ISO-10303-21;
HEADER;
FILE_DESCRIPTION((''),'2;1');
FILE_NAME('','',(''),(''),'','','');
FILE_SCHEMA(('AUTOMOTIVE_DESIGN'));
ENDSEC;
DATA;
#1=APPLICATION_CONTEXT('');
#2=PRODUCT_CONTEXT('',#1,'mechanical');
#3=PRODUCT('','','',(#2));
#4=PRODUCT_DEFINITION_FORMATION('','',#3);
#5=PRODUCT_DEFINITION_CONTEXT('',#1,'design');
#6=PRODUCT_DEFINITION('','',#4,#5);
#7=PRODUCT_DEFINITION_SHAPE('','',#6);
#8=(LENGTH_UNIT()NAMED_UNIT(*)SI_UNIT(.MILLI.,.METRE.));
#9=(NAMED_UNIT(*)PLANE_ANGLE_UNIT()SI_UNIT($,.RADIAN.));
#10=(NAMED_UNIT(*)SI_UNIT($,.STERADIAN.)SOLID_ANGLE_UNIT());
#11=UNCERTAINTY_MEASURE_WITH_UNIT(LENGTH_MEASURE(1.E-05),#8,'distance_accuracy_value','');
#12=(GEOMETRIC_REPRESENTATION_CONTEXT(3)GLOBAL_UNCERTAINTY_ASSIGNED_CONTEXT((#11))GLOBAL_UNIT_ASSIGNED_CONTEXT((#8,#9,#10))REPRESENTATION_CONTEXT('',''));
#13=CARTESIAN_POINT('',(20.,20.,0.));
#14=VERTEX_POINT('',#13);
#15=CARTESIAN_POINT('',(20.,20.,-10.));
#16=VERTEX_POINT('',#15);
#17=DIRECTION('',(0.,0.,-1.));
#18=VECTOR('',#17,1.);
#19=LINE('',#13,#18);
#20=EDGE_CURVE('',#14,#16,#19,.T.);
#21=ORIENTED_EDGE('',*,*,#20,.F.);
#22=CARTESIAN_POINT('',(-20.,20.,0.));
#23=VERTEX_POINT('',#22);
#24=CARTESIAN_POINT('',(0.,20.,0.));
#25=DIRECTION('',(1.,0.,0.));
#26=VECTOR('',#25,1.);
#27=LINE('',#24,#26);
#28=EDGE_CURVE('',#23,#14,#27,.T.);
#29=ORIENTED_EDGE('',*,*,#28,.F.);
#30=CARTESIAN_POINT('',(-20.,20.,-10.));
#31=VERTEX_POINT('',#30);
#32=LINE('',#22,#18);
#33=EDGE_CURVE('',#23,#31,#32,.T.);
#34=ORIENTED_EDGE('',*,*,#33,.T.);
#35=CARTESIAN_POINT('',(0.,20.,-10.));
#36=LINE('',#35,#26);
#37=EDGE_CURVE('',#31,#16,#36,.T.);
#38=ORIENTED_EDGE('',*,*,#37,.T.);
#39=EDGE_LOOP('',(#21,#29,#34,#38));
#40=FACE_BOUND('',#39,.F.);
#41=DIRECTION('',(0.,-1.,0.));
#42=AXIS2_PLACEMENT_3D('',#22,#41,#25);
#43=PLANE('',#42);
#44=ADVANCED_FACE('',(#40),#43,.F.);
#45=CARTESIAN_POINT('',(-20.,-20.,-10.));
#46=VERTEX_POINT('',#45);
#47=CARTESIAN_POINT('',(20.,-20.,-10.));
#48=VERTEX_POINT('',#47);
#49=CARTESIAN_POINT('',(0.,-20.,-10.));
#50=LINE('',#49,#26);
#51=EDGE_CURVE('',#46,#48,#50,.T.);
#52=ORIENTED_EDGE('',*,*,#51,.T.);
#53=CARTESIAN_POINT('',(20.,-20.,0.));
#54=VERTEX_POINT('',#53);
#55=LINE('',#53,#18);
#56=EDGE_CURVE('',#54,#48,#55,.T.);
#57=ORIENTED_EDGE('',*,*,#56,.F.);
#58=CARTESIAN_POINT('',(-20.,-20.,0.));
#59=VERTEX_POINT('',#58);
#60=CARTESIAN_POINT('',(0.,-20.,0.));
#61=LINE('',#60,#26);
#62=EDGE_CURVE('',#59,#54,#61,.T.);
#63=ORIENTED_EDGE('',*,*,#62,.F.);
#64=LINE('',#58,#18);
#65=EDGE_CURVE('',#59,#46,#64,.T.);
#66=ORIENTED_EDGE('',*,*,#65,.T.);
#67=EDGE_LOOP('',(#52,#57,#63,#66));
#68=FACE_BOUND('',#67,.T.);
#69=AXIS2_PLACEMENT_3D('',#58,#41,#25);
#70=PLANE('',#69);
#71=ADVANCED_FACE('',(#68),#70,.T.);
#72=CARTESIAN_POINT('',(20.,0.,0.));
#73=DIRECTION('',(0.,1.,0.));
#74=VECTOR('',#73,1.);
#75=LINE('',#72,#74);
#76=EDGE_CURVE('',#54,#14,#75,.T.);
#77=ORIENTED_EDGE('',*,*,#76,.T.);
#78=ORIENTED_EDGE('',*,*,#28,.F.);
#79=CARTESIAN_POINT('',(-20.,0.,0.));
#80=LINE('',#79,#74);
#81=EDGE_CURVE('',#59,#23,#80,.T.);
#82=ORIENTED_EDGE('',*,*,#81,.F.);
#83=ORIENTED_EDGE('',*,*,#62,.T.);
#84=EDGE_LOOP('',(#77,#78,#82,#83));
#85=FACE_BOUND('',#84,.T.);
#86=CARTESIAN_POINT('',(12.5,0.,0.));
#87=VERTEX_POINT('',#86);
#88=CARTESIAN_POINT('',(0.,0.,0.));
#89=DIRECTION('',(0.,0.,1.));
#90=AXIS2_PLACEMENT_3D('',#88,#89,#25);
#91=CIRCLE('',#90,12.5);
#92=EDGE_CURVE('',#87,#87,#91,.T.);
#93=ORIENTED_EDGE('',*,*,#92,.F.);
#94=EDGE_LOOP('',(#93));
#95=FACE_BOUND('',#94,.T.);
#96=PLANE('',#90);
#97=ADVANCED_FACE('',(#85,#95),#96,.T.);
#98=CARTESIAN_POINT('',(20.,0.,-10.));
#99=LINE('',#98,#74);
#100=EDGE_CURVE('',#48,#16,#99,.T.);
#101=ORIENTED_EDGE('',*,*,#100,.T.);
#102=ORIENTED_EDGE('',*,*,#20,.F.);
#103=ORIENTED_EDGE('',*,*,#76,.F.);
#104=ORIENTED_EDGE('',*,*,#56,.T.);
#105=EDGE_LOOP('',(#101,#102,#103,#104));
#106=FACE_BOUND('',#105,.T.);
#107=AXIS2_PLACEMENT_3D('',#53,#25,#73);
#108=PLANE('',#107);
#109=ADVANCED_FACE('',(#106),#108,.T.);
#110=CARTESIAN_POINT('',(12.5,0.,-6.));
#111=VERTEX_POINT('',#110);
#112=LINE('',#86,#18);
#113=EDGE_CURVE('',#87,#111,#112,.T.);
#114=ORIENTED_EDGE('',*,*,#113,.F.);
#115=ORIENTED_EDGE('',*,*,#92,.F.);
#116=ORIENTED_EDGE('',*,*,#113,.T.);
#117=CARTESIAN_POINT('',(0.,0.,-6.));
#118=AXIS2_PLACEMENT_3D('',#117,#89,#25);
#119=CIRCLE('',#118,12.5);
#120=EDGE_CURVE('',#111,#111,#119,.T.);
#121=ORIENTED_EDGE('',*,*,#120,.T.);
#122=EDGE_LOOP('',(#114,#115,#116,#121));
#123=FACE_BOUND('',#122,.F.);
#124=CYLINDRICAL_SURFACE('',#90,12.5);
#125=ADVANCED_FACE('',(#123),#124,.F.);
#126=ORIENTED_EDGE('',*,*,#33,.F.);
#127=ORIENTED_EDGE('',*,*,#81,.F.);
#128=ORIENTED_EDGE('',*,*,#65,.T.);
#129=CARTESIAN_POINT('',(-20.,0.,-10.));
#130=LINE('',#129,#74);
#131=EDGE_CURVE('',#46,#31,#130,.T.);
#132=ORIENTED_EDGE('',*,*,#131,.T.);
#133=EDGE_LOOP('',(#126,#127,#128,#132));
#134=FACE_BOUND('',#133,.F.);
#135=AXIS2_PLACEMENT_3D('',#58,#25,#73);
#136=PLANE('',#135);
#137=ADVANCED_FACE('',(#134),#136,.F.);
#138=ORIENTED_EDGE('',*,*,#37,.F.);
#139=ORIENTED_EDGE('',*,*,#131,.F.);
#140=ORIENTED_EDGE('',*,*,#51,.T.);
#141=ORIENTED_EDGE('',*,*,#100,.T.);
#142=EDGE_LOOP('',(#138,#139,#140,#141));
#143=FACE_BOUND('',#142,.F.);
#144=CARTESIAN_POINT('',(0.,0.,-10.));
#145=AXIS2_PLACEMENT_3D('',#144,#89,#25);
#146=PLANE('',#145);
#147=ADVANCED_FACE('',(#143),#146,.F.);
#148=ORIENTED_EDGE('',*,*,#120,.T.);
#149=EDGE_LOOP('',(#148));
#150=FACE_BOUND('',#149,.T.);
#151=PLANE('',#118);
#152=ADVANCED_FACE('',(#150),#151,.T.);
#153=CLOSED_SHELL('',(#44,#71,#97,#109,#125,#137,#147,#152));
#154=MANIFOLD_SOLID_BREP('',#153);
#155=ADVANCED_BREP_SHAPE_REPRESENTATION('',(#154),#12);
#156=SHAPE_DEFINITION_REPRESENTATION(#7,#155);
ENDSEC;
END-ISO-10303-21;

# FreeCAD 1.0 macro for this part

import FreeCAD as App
import Part
import Sketcher

V = App.Vector
Q = App.Units.Quantity

doc = App.newDocument("Part")
body = doc.addObject("PartDesign::Body", "Body")

# Sketch on XY plane
sketch1 = body.newObject("Sketcher::SketchObject", "Sketch")
sketch1.AttachmentSupport = (doc.getObject("XY_Plane"), [""])
sketch1.MapMode = "FlatFace"
sketch1.addGeometry(Part.LineSegment(V(-20, 20, 0), V(-20, -20, 0)), False)
sketch1.addGeometry(Part.LineSegment(V(-20, -20, 0), V(20, -20, 0)), False)
sketch1.addGeometry(Part.LineSegment(V(20, -20, 0), V(20, 20, 0)), False)
sketch1.addGeometry(Part.LineSegment(V(20, 20, 0), V(-20, 20, 0)), False)
sketch1.addConstraint(Sketcher.Constraint("Coincident", 0, 2, 1, 1))
sketch1.addConstraint(Sketcher.Constraint("Coincident", 1, 2, 2, 1))
sketch1.addConstraint(Sketcher.Constraint("Coincident", 2, 2, 3, 1))
sketch1.addConstraint(Sketcher.Constraint("Coincident", 3, 2, 0, 1))
sketch1.addConstraint(Sketcher.Constraint("Vertical", 0))
sketch1.addConstraint(Sketcher.Constraint("Horizontal", 1))
sketch1.addConstraint(Sketcher.Constraint("Vertical", 2))
sketch1.addConstraint(Sketcher.Constraint("Horizontal", 3))
sketch1.addConstraint(Sketcher.Constraint("Symmetric", 0, 2, 2, 2, -1, 1))
sketch1.addConstraint(Sketcher.Constraint("Equal", 3, 0))
sketch1.addConstraint(Sketcher.Constraint("DistanceX", 1, 1, 1, 2, 40.0))
pad1 = body.newObject("PartDesign::Pad", "Pad")
pad1.Profile = sketch1
pad1.Length = 10
pad1.Reversed = True

# Sketch on XZ plane
sketch2 = body.newObject("Sketcher::SketchObject", "Sketch001")
sketch2.AttachmentSupport = (doc.getObject("XZ_Plane"), [""])
sketch2.MapMode = "FlatFace"
sketch2.addGeometry(Part.LineSegment(V(0, 0, 0), V(0, -5, 0)), False)
sketch2.addGeometry(Part.LineSegment(V(0, -5, 0), V(2.5, -3.2, 0)), False)
sketch2.addGeometry(Part.LineSegment(V(2.5, -3.2, 0), V(2.5, 0, 0)), False)
sketch2.addGeometry(Part.LineSegment(V(2.5, 0, 0), V(0, 0, 0)), False)
sketch2.addConstraint(Sketcher.Constraint("Coincident", 0, 2, 1, 1))
sketch2.addConstraint(Sketcher.Constraint("Coincident", 1, 2, 2, 1))
sketch2.addConstraint(Sketcher.Constraint("Coincident", 2, 2, 3, 1))
sketch2.addConstraint(Sketcher.Constraint("Coincident", 3, 2, 0, 1))
sketch2.addConstraint(Sketcher.Constraint("Vertical", 0))
sketch2.addConstraint(Sketcher.Constraint("Vertical", 2))
sketch2.addConstraint(Sketcher.Constraint("Horizontal", 3))
sketch2.addConstraint(Sketcher.Constraint("Coincident", 3, 2, -1, 1))
sketch2.addConstraint(Sketcher.Constraint("DistanceY", 0, 2, 0, 1, 5.0))
sketch2.addConstraint(Sketcher.Constraint("Angle", 1, Q("35.000002 deg")))
sketch2.addConstraint(Sketcher.Constraint("DistanceX", 3, 2, 3, 1, 2.5))
groove = body.newObject("PartDesign::Groove", "Groove")
groove.Profile = sketch2
groove.ReferenceAxis = (sketch2, ["V_Axis"])
groove.Angle = 360

# Sketch on XY plane
sketch3 = body.newObject("Sketcher::SketchObject", "Sketch002")
sketch3.AttachmentSupport = (doc.getObject("XY_Plane"), [""])
sketch3.MapMode = "FlatFace"
sketch3.addGeometry(Part.Circle(V(0, 0, 0), V(0, 0, 1), 12), False)
sketch3.addConstraint(Sketcher.Constraint("Coincident", 0, 3, -1, 1))
sketch3.addConstraint(Sketcher.Constraint("Diameter", 0, 25.0))
pocket1 = body.newObject("PartDesign::Pocket", "Pocket")
pocket1.Profile = sketch3
pocket1.Length = 6

doc.recompute()
